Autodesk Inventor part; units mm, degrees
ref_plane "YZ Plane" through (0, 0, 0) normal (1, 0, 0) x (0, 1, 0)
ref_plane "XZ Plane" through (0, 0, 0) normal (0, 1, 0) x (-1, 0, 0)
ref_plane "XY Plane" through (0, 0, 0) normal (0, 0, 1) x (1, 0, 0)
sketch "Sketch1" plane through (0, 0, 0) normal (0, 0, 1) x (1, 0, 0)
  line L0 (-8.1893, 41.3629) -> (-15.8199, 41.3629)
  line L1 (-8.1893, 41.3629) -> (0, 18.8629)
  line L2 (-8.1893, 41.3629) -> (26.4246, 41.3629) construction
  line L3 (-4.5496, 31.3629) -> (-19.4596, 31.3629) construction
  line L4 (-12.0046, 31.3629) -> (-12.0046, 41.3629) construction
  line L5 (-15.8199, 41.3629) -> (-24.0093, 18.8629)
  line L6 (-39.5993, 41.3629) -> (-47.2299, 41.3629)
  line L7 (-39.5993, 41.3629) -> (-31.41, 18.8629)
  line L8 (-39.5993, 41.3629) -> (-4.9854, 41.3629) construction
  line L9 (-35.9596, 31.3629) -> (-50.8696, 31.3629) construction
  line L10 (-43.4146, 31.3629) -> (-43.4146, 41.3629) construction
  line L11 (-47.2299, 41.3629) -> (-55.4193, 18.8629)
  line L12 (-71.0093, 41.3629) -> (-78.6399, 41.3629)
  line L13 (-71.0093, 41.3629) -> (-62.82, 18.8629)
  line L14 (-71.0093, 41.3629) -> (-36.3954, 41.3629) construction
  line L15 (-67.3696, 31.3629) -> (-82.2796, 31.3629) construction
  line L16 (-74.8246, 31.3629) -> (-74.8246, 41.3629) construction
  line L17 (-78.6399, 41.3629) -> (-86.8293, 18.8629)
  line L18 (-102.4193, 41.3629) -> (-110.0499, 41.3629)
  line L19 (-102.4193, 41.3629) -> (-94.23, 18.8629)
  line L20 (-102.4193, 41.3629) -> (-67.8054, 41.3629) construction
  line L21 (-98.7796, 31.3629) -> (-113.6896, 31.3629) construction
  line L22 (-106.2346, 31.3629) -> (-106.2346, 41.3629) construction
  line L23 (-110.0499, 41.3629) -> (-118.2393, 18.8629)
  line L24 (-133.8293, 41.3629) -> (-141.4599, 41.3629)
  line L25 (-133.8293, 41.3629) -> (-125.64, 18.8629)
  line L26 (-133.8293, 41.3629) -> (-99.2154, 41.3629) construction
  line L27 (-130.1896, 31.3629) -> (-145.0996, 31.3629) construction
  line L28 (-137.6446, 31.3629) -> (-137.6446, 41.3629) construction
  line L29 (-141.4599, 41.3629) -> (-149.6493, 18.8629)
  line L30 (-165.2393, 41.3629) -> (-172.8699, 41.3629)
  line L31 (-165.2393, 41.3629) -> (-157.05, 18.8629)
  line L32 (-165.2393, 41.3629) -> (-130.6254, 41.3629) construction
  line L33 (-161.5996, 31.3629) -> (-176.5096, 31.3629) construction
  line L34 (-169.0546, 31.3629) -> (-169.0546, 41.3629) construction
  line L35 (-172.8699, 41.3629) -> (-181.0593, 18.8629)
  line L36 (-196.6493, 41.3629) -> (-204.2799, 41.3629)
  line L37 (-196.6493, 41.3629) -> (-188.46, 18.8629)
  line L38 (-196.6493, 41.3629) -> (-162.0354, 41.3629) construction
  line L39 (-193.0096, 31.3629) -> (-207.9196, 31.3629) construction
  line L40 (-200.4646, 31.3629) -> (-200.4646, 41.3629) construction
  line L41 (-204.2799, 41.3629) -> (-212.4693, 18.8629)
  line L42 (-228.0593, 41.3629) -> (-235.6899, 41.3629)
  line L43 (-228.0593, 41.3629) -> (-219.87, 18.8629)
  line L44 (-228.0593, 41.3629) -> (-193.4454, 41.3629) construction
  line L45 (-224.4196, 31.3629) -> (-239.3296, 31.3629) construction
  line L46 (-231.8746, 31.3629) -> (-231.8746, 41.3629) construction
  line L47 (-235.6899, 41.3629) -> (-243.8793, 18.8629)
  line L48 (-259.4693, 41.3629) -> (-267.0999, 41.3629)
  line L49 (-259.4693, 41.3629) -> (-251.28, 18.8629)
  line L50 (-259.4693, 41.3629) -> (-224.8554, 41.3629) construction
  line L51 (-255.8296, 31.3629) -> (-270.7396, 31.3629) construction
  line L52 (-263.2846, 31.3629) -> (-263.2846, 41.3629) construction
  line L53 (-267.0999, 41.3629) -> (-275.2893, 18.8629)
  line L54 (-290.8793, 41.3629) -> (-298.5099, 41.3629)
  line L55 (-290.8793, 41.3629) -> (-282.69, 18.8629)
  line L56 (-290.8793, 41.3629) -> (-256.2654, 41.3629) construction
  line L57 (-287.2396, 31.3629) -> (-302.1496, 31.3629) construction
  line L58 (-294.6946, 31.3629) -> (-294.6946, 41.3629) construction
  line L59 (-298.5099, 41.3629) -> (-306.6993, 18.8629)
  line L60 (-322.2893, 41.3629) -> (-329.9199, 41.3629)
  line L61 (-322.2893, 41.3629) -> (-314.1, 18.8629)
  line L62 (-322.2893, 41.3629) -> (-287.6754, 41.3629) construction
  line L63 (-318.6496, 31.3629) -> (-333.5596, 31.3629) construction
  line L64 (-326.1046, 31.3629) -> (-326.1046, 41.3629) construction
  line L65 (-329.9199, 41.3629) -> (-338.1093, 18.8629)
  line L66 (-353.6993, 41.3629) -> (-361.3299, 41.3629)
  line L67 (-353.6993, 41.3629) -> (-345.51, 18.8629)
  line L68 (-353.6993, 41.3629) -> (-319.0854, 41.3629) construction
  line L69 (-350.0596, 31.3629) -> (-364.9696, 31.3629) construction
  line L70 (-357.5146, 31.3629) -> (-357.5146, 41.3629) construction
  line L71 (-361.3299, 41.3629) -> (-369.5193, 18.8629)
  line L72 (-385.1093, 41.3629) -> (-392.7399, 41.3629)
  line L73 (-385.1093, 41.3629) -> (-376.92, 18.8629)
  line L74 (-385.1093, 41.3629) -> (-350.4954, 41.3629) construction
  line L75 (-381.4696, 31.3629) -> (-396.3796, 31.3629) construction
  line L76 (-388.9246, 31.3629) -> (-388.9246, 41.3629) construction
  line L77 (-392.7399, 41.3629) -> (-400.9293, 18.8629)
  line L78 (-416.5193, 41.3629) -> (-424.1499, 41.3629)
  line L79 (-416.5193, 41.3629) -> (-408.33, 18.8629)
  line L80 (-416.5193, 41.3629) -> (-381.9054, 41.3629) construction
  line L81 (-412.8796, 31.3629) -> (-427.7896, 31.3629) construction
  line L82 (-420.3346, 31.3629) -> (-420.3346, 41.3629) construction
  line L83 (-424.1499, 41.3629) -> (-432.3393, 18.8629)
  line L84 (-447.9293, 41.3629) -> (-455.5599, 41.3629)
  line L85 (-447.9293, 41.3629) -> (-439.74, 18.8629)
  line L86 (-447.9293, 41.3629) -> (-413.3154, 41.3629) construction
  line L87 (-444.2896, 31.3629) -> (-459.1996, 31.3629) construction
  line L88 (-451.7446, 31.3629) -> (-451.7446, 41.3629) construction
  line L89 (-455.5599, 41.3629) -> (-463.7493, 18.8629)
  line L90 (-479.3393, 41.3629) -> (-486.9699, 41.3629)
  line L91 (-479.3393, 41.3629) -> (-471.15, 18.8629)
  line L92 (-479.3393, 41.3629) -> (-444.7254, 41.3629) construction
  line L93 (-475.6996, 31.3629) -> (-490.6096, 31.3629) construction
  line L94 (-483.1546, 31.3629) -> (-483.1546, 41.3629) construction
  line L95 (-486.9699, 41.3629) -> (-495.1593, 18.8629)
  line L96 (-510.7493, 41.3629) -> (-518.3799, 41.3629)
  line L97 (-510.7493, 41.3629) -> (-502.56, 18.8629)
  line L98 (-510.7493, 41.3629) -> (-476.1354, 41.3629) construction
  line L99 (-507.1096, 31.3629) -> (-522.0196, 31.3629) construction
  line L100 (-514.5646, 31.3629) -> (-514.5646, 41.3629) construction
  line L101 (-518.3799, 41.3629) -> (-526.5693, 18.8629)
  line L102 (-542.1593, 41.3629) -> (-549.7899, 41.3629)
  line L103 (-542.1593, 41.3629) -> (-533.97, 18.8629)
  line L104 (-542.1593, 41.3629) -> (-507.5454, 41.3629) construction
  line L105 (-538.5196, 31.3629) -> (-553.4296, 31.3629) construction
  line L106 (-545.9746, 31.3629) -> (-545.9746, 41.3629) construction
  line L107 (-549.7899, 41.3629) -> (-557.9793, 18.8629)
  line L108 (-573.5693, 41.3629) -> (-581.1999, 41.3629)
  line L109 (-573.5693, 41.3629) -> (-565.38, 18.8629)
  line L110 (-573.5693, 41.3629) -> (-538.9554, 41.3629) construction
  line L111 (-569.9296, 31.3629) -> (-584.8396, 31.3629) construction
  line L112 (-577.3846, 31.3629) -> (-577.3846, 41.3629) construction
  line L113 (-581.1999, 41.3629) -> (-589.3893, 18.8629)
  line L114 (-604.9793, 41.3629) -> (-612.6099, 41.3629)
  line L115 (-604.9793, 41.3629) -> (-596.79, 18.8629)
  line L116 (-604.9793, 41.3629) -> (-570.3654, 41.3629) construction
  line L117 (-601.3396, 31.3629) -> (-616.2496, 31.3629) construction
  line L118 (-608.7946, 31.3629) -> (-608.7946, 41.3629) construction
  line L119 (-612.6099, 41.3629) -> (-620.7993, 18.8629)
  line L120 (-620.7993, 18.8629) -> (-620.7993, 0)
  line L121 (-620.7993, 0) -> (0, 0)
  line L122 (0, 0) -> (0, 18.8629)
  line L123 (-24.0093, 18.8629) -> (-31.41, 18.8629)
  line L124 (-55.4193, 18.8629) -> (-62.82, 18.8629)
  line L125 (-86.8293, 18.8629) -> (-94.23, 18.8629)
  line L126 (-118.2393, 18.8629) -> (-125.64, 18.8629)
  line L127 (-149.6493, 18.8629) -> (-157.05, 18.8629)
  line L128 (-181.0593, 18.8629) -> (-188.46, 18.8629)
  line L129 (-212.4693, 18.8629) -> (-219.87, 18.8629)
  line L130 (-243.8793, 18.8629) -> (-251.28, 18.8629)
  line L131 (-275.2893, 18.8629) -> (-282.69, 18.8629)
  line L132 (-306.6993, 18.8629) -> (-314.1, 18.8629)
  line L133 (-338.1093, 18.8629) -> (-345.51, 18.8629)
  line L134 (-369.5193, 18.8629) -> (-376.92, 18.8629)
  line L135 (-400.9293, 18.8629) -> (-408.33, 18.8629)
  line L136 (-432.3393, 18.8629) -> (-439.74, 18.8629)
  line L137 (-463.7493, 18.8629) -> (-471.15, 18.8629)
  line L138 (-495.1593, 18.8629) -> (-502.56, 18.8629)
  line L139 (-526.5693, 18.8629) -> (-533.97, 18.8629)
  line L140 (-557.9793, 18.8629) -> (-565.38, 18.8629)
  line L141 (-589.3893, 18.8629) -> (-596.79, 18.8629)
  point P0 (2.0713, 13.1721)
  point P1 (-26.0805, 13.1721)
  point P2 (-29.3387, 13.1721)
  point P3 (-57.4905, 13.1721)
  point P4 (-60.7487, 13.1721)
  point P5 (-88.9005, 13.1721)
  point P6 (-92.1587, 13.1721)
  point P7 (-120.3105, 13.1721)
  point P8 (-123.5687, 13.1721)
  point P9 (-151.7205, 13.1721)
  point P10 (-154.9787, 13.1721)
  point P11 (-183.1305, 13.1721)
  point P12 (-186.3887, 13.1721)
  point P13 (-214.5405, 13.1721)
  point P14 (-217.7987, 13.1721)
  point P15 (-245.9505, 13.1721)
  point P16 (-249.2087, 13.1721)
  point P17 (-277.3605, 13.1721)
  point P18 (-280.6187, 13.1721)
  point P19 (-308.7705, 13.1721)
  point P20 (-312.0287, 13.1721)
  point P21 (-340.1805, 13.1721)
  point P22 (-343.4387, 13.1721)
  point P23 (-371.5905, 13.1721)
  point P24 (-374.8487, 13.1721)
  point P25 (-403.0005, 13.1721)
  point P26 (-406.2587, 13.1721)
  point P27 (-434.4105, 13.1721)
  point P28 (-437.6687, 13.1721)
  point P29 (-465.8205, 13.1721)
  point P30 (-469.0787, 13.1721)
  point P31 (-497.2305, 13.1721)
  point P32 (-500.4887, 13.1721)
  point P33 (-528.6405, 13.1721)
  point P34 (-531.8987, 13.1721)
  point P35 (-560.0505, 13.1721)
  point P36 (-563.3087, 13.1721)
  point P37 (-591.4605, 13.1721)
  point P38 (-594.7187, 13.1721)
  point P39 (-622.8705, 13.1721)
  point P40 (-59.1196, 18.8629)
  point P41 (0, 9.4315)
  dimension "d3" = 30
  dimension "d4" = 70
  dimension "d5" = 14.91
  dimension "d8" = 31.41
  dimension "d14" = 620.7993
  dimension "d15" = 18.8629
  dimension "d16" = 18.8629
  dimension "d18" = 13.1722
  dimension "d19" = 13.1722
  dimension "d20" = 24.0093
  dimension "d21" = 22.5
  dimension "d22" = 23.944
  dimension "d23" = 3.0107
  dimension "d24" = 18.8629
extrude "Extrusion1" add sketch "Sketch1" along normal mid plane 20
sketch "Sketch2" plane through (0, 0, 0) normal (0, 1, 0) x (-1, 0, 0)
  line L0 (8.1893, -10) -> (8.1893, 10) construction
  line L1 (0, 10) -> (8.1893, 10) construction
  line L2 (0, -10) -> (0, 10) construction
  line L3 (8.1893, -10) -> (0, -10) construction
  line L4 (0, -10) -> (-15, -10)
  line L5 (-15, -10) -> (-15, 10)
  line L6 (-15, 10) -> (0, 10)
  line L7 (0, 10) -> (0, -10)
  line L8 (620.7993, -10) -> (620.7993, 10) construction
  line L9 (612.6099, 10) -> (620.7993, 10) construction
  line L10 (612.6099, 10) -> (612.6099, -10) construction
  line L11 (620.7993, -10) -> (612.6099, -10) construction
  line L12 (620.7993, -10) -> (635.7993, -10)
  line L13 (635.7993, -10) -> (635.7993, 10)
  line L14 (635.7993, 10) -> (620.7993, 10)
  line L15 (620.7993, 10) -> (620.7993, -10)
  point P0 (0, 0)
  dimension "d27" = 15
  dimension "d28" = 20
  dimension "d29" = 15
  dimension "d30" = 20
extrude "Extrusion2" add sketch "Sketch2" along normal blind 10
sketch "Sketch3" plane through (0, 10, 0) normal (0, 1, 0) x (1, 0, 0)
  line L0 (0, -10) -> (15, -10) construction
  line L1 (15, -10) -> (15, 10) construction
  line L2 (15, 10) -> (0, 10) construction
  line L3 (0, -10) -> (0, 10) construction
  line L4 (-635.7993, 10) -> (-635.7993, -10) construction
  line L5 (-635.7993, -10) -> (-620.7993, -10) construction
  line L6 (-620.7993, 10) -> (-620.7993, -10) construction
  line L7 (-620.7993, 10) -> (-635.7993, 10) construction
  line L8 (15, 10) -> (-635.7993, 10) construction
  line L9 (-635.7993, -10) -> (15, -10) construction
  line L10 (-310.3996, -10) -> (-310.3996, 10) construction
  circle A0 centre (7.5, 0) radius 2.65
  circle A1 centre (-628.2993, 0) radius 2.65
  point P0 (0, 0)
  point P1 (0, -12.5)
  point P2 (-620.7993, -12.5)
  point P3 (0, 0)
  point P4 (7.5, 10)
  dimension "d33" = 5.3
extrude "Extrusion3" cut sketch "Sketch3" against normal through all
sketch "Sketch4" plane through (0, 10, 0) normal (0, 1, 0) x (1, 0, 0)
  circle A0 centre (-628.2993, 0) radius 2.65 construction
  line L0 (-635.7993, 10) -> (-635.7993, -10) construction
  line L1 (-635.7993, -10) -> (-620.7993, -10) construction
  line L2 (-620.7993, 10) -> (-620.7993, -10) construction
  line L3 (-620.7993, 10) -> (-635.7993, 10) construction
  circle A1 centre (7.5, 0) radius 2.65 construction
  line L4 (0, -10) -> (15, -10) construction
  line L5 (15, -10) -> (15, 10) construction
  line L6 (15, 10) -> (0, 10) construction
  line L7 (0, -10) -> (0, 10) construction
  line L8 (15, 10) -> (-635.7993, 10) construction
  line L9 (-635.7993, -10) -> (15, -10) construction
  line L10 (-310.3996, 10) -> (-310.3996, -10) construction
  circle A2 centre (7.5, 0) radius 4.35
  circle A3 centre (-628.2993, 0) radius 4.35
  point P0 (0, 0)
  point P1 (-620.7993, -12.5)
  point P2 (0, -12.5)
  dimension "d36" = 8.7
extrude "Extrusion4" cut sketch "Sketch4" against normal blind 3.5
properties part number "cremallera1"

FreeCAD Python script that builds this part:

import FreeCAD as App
import Part
import Sketcher
Q = App.Units.Quantity


def add_polygon(sketch, points):
    """Adds a closed chain of lines whose ends are joined by coincident constraints."""
    first, n = sketch.GeometryCount, len(points)
    for a, b in zip(points, points[1:] + points[:1]):
        sketch.addGeometry(Part.LineSegment(App.Vector(*a, 0), App.Vector(*b, 0)), False)
    for i in range(n):
        sketch.addConstraint(Sketcher.Constraint("Coincident", first + i, 2, first + (i + 1) % n, 1))

doc = App.newDocument("Part")
body = doc.addObject("PartDesign::Body", "Body")

# Sketch on XY plane
sketch1 = doc.addObject("Sketcher::SketchObject", "Sketch")
body.addObject(sketch1)
sketch1.AttachmentSupport = (doc.XY_Plane, [""])
sketch1.MapMode = "FlatFace"
add_polygon(sketch1, [(0, 19), (-8, 41), (-16, 41), (-24, 19), (-31, 19), (-40, 41), (-47, 41), (-55, 19), (-63, 19), (-71, 41), (-79, 41), (-87, 19), (-94, 19), (-102, 41), (-110, 41), (-118, 19), (-126, 19), (-134, 41), (-141, 41), (-150, 19), (-157, 19), (-165, 41), (-173, 41), (-181, 19), (-188, 19), (-197, 41), (-204, 41), (-212, 19), (-220, 19), (-228, 41), (-236, 41), (-244, 19), (-251, 19), (-259, 41), (-267, 41), (-275, 19), (-283, 19), (-291, 41), (-299, 41), (-307, 19), (-314, 19), (-322, 41), (-330, 41), (-338, 19), (-346, 19), (-354, 41), (-361, 41), (-370, 19), (-377, 19), (-385, 41), (-393, 41), (-401, 19), (-408, 19), (-417, 41), (-424, 41), (-432, 19), (-440, 19), (-448, 41), (-456, 41), (-464, 19), (-471, 19), (-479, 41), (-487, 41), (-495, 19), (-503, 19), (-511, 41), (-518, 41), (-527, 19), (-534, 19), (-542, 41), (-550, 41), (-558, 19), (-565, 19), (-574, 41), (-581, 41), (-589, 19), (-597, 19), (-605, 41), (-613, 41), (-621, 19), (-621, 0), (0, 0)])  # lines 0-81
sketch1.addConstraint(Sketcher.Constraint("Horizontal", 1))
sketch1.addConstraint(Sketcher.Constraint("Horizontal", 3))
sketch1.addConstraint(Sketcher.Constraint("Horizontal", 5))
sketch1.addConstraint(Sketcher.Constraint("Horizontal", 7))
sketch1.addConstraint(Sketcher.Constraint("Horizontal", 9))
sketch1.addConstraint(Sketcher.Constraint("Horizontal", 11))
sketch1.addConstraint(Sketcher.Constraint("Horizontal", 13))
sketch1.addConstraint(Sketcher.Constraint("Horizontal", 15))
sketch1.addConstraint(Sketcher.Constraint("Horizontal", 17))
sketch1.addConstraint(Sketcher.Constraint("Horizontal", 19))
sketch1.addConstraint(Sketcher.Constraint("Horizontal", 21))
sketch1.addConstraint(Sketcher.Constraint("Horizontal", 23))
sketch1.addConstraint(Sketcher.Constraint("Horizontal", 25))
sketch1.addConstraint(Sketcher.Constraint("Horizontal", 27))
sketch1.addConstraint(Sketcher.Constraint("Horizontal", 29))
sketch1.addConstraint(Sketcher.Constraint("Horizontal", 31))
sketch1.addConstraint(Sketcher.Constraint("Horizontal", 33))
sketch1.addConstraint(Sketcher.Constraint("Horizontal", 35))
sketch1.addConstraint(Sketcher.Constraint("Horizontal", 37))
sketch1.addConstraint(Sketcher.Constraint("Horizontal", 39))
sketch1.addConstraint(Sketcher.Constraint("Horizontal", 41))
sketch1.addConstraint(Sketcher.Constraint("Horizontal", 43))
sketch1.addConstraint(Sketcher.Constraint("Horizontal", 45))
sketch1.addConstraint(Sketcher.Constraint("Horizontal", 47))
sketch1.addConstraint(Sketcher.Constraint("Horizontal", 49))
sketch1.addConstraint(Sketcher.Constraint("Horizontal", 51))
sketch1.addConstraint(Sketcher.Constraint("Horizontal", 53))
sketch1.addConstraint(Sketcher.Constraint("Horizontal", 55))
sketch1.addConstraint(Sketcher.Constraint("Horizontal", 57))
sketch1.addConstraint(Sketcher.Constraint("Horizontal", 59))
sketch1.addConstraint(Sketcher.Constraint("Horizontal", 61))
sketch1.addConstraint(Sketcher.Constraint("Horizontal", 63))
sketch1.addConstraint(Sketcher.Constraint("Horizontal", 65))
sketch1.addConstraint(Sketcher.Constraint("Horizontal", 67))
sketch1.addConstraint(Sketcher.Constraint("Horizontal", 69))
sketch1.addConstraint(Sketcher.Constraint("Horizontal", 71))
sketch1.addConstraint(Sketcher.Constraint("Horizontal", 73))
sketch1.addConstraint(Sketcher.Constraint("Horizontal", 75))
sketch1.addConstraint(Sketcher.Constraint("Horizontal", 77))
sketch1.addConstraint(Sketcher.Constraint("Vertical", 79))
sketch1.addConstraint(Sketcher.Constraint("Horizontal", 80))
sketch1.addConstraint(Sketcher.Constraint("Vertical", 81))
sketch1.addConstraint(Sketcher.Constraint("Coincident", 80, 2, -1, 1))
sketch1.addConstraint(Sketcher.Constraint("Parallel", 0, 4))
sketch1.addConstraint(Sketcher.Constraint("Parallel", 2, 6))
sketch1.addConstraint(Sketcher.Constraint("Parallel", 4, 8))
sketch1.addConstraint(Sketcher.Constraint("Parallel", 6, 10))
sketch1.addConstraint(Sketcher.Constraint("Parallel", 8, 12))
sketch1.addConstraint(Sketcher.Constraint("Parallel", 10, 14))
sketch1.addConstraint(Sketcher.Constraint("Parallel", 12, 16))
sketch1.addConstraint(Sketcher.Constraint("Parallel", 14, 18))
sketch1.addConstraint(Sketcher.Constraint("Parallel", 16, 20))
sketch1.addConstraint(Sketcher.Constraint("Parallel", 18, 22))
sketch1.addConstraint(Sketcher.Constraint("Parallel", 20, 24))
sketch1.addConstraint(Sketcher.Constraint("Parallel", 22, 26))
sketch1.addConstraint(Sketcher.Constraint("Parallel", 24, 28))
sketch1.addConstraint(Sketcher.Constraint("Parallel", 26, 30))
sketch1.addConstraint(Sketcher.Constraint("Parallel", 28, 32))
sketch1.addConstraint(Sketcher.Constraint("Parallel", 30, 34))
sketch1.addConstraint(Sketcher.Constraint("Parallel", 32, 36))
sketch1.addConstraint(Sketcher.Constraint("Parallel", 34, 38))
sketch1.addConstraint(Sketcher.Constraint("Parallel", 36, 40))
sketch1.addConstraint(Sketcher.Constraint("Parallel", 38, 42))
sketch1.addConstraint(Sketcher.Constraint("Parallel", 40, 44))
sketch1.addConstraint(Sketcher.Constraint("Parallel", 42, 46))
sketch1.addConstraint(Sketcher.Constraint("Parallel", 44, 48))
sketch1.addConstraint(Sketcher.Constraint("Parallel", 46, 50))
sketch1.addConstraint(Sketcher.Constraint("Parallel", 48, 52))
sketch1.addConstraint(Sketcher.Constraint("Parallel", 50, 54))
sketch1.addConstraint(Sketcher.Constraint("Parallel", 52, 56))
sketch1.addConstraint(Sketcher.Constraint("Parallel", 54, 58))
sketch1.addConstraint(Sketcher.Constraint("Parallel", 56, 60))
sketch1.addConstraint(Sketcher.Constraint("Parallel", 58, 62))
sketch1.addConstraint(Sketcher.Constraint("Parallel", 60, 64))
sketch1.addConstraint(Sketcher.Constraint("Parallel", 62, 66))
sketch1.addConstraint(Sketcher.Constraint("Parallel", 64, 68))
sketch1.addConstraint(Sketcher.Constraint("Parallel", 66, 70))
sketch1.addConstraint(Sketcher.Constraint("Parallel", 68, 72))
sketch1.addConstraint(Sketcher.Constraint("Parallel", 70, 74))
sketch1.addConstraint(Sketcher.Constraint("Parallel", 72, 76))
sketch1.addConstraint(Sketcher.Constraint("Parallel", 74, 78))
sketch1.addConstraint(Sketcher.Constraint("Horizontal", 1, 2, 4, 2))
sketch1.addConstraint(Sketcher.Constraint("Horizontal", 3, 2, 6, 2))
sketch1.addConstraint(Sketcher.Constraint("Horizontal", 5, 2, 8, 2))
sketch1.addConstraint(Sketcher.Constraint("Horizontal", 7, 2, 10, 2))
sketch1.addConstraint(Sketcher.Constraint("Horizontal", 9, 2, 12, 2))
sketch1.addConstraint(Sketcher.Constraint("Horizontal", 11, 2, 14, 2))
sketch1.addConstraint(Sketcher.Constraint("Horizontal", 13, 2, 16, 2))
sketch1.addConstraint(Sketcher.Constraint("Horizontal", 15, 2, 18, 2))
sketch1.addConstraint(Sketcher.Constraint("Horizontal", 17, 2, 20, 2))
sketch1.addConstraint(Sketcher.Constraint("Horizontal", 19, 2, 22, 2))
sketch1.addConstraint(Sketcher.Constraint("Horizontal", 21, 2, 24, 2))
sketch1.addConstraint(Sketcher.Constraint("Horizontal", 23, 2, 26, 2))
sketch1.addConstraint(Sketcher.Constraint("Horizontal", 25, 2, 28, 2))
sketch1.addConstraint(Sketcher.Constraint("Horizontal", 27, 2, 30, 2))
sketch1.addConstraint(Sketcher.Constraint("Horizontal", 29, 2, 32, 2))
sketch1.addConstraint(Sketcher.Constraint("Horizontal", 31, 2, 34, 2))
sketch1.addConstraint(Sketcher.Constraint("Horizontal", 33, 2, 36, 2))
sketch1.addConstraint(Sketcher.Constraint("Horizontal", 35, 2, 38, 2))
sketch1.addConstraint(Sketcher.Constraint("Horizontal", 37, 2, 40, 2))
sketch1.addConstraint(Sketcher.Constraint("Horizontal", 39, 2, 42, 2))
sketch1.addConstraint(Sketcher.Constraint("Horizontal", 41, 2, 44, 2))
sketch1.addConstraint(Sketcher.Constraint("Horizontal", 43, 2, 46, 2))
sketch1.addConstraint(Sketcher.Constraint("Horizontal", 45, 2, 48, 2))
sketch1.addConstraint(Sketcher.Constraint("Horizontal", 47, 2, 50, 2))
sketch1.addConstraint(Sketcher.Constraint("Horizontal", 49, 2, 52, 2))
sketch1.addConstraint(Sketcher.Constraint("Horizontal", 51, 2, 54, 2))
sketch1.addConstraint(Sketcher.Constraint("Horizontal", 53, 2, 56, 2))
sketch1.addConstraint(Sketcher.Constraint("Horizontal", 55, 2, 58, 2))
sketch1.addConstraint(Sketcher.Constraint("Horizontal", 57, 2, 60, 2))
sketch1.addConstraint(Sketcher.Constraint("Horizontal", 59, 2, 62, 2))
sketch1.addConstraint(Sketcher.Constraint("Horizontal", 61, 2, 64, 2))
sketch1.addConstraint(Sketcher.Constraint("Horizontal", 63, 2, 66, 2))
sketch1.addConstraint(Sketcher.Constraint("Horizontal", 65, 2, 68, 2))
sketch1.addConstraint(Sketcher.Constraint("Horizontal", 67, 2, 70, 2))
sketch1.addConstraint(Sketcher.Constraint("Horizontal", 69, 2, 72, 2))
sketch1.addConstraint(Sketcher.Constraint("Horizontal", 71, 2, 74, 2))
sketch1.addConstraint(Sketcher.Constraint("Horizontal", 73, 2, 76, 2))
sketch1.addConstraint(Sketcher.Constraint("Horizontal", 75, 2, 78, 2))
sketch1.addConstraint(Sketcher.Constraint("Horizontal", 78, 2, 81, 2))
sketch1.addConstraint(Sketcher.Constraint("Equal", 1, 5))
sketch1.addConstraint(Sketcher.Constraint("Equal", 3, 7))
sketch1.addConstraint(Sketcher.Constraint("Equal", 5, 9))
sketch1.addConstraint(Sketcher.Constraint("Equal", 7, 11))
sketch1.addConstraint(Sketcher.Constraint("Equal", 9, 13))
sketch1.addConstraint(Sketcher.Constraint("Equal", 11, 15))
sketch1.addConstraint(Sketcher.Constraint("Equal", 13, 17))
sketch1.addConstraint(Sketcher.Constraint("Equal", 15, 19))
sketch1.addConstraint(Sketcher.Constraint("Equal", 17, 21))
sketch1.addConstraint(Sketcher.Constraint("Equal", 19, 23))
sketch1.addConstraint(Sketcher.Constraint("Equal", 21, 25))
sketch1.addConstraint(Sketcher.Constraint("Equal", 23, 27))
sketch1.addConstraint(Sketcher.Constraint("Equal", 25, 29))
sketch1.addConstraint(Sketcher.Constraint("Equal", 27, 31))
sketch1.addConstraint(Sketcher.Constraint("Equal", 29, 33))
sketch1.addConstraint(Sketcher.Constraint("Equal", 31, 35))
sketch1.addConstraint(Sketcher.Constraint("Equal", 33, 37))
sketch1.addConstraint(Sketcher.Constraint("Equal", 35, 39))
sketch1.addConstraint(Sketcher.Constraint("Equal", 37, 41))
sketch1.addConstraint(Sketcher.Constraint("Equal", 39, 43))
sketch1.addConstraint(Sketcher.Constraint("Equal", 41, 45))
sketch1.addConstraint(Sketcher.Constraint("Equal", 43, 47))
sketch1.addConstraint(Sketcher.Constraint("Equal", 45, 49))
sketch1.addConstraint(Sketcher.Constraint("Equal", 47, 51))
sketch1.addConstraint(Sketcher.Constraint("Equal", 49, 53))
sketch1.addConstraint(Sketcher.Constraint("Equal", 51, 55))
sketch1.addConstraint(Sketcher.Constraint("Equal", 53, 57))
sketch1.addConstraint(Sketcher.Constraint("Equal", 55, 59))
sketch1.addConstraint(Sketcher.Constraint("Equal", 57, 61))
sketch1.addConstraint(Sketcher.Constraint("Equal", 59, 63))
sketch1.addConstraint(Sketcher.Constraint("Equal", 61, 65))
sketch1.addConstraint(Sketcher.Constraint("Equal", 63, 67))
sketch1.addConstraint(Sketcher.Constraint("Equal", 65, 69))
sketch1.addConstraint(Sketcher.Constraint("Equal", 67, 71))
sketch1.addConstraint(Sketcher.Constraint("Equal", 69, 73))
sketch1.addConstraint(Sketcher.Constraint("Equal", 71, 75))
sketch1.addConstraint(Sketcher.Constraint("Equal", 73, 77))
sketch1.addConstraint(Sketcher.Constraint("Equal", 0, 2))
sketch1.addConstraint(Sketcher.Constraint("DistanceY", 79, 2, 79, 1, 18.863))
sketch1.addConstraint(Sketcher.Constraint("DistanceX", 3, 2, -1, 1, 31.41))
sketch1.addConstraint(Sketcher.Constraint("Angle", 0, Q("110 deg")))
sketch1.addConstraint(Sketcher.Constraint("Distance", 0, 23.944))
sketch1.addConstraint(Sketcher.Constraint("DistanceX", 80, 1, 80, 2, 620.7993))
pad1 = doc.addObject("PartDesign::Pad", "Pad")
body.addObject(pad1)
pad1.Profile = sketch1
pad1.Length = 20
pad1.Midplane = True

# Sketch on XZ plane
sketch2 = doc.addObject("Sketcher::SketchObject", "Sketch001")
body.addObject(sketch2)
sketch2.AttachmentSupport = (doc.XZ_Plane, [""])
sketch2.MapMode = "FlatFace"
add_polygon(sketch2, [(15, -10), (0, -10), (0, 10), (15, 10)])  # lines 0-3
add_polygon(sketch2, [(-621, 10), (-621, -10), (-636, -10), (-636, 10)])  # lines 4-7
sketch2.addConstraint(Sketcher.Constraint("Horizontal", 0))
sketch2.addConstraint(Sketcher.Constraint("Vertical", 1))
sketch2.addConstraint(Sketcher.Constraint("Horizontal", 2))
sketch2.addConstraint(Sketcher.Constraint("Vertical", 3))
sketch2.addConstraint(Sketcher.Constraint("Vertical", 4))
sketch2.addConstraint(Sketcher.Constraint("Horizontal", 5))
sketch2.addConstraint(Sketcher.Constraint("Vertical", 6))
sketch2.addConstraint(Sketcher.Constraint("Horizontal", 7))
sketch2.addConstraint(Sketcher.Constraint("Symmetric", 0, 2, 1, 2, -1, 1))
sketch2.addConstraint(Sketcher.Constraint("Horizontal", 3, 2, 4, 2))
sketch2.addConstraint(Sketcher.Constraint("Horizontal", 2, 2, 6, 2))
sketch2.addConstraint(Sketcher.Constraint("Equal", 2, 5))
sketch2.addConstraint(Sketcher.Constraint("DistanceX", 0, 2, 0, 1, 15.0))
sketch2.addConstraint(Sketcher.Constraint("DistanceY", 1, 1, 1, 2, 20.0))
sketch2.addConstraint(Sketcher.Constraint("DistanceX", 4, 2, -1, 1, 620.7993))
pad2 = doc.addObject("PartDesign::Pad", "Pad001")
body.addObject(pad2)
pad2.Profile = sketch2
pad2.Length = 10
pad2.Reversed = True

# Sketch on XZ plane
sketch3 = doc.addObject("Sketcher::SketchObject", "Sketch002")
body.addObject(sketch3)
sketch3.AttachmentSupport = (doc.XZ_Plane, [""])
sketch3.MapMode = "FlatFace"
sketch3.AttachmentOffset = App.Placement(App.Vector(0, 0, -10), App.Rotation())
sketch3.addGeometry(Part.Circle(App.Vector(7.5, 0, 0), App.Vector(0, 0, 1), 2.6), False)
sketch3.addGeometry(Part.Circle(App.Vector(-628.3, 0, 0), App.Vector(0, 0, 1), 2.6), False)
sketch3.addConstraint(Sketcher.Constraint("Equal", 0, 1))
sketch3.addConstraint(Sketcher.Constraint("PointOnObject", 0, 3, -1))
sketch3.addConstraint(Sketcher.Constraint("PointOnObject", 1, 3, -1))
sketch3.addConstraint(Sketcher.Constraint("Diameter", 0, 5.3))
sketch3.addConstraint(Sketcher.Constraint("DistanceX", -1, 1, 0, 3, 7.5))
sketch3.addConstraint(Sketcher.Constraint("DistanceX", 1, 3, -1, 1, 628.2993))
pocket1 = doc.addObject("PartDesign::Pocket", "Pocket")
body.addObject(pocket1)
pocket1.Profile = sketch3
pocket1.Type = "ThroughAll"
pocket1.Reversed = True

# Sketch on XZ plane
sketch4 = doc.addObject("Sketcher::SketchObject", "Sketch003")
body.addObject(sketch4)
sketch4.AttachmentSupport = (doc.XZ_Plane, [""])
sketch4.MapMode = "FlatFace"
sketch4.AttachmentOffset = App.Placement(App.Vector(0, 0, -10), App.Rotation())
sketch4.addGeometry(Part.Circle(App.Vector(7.5, 0, 0), App.Vector(0, 0, 1), 4.3), False)
sketch4.addGeometry(Part.Circle(App.Vector(-628.3, 0, 0), App.Vector(0, 0, 1), 4.3), False)
sketch4.addConstraint(Sketcher.Constraint("Equal", 0, 1))
sketch4.addConstraint(Sketcher.Constraint("PointOnObject", 0, 3, -1))
sketch4.addConstraint(Sketcher.Constraint("PointOnObject", 1, 3, -1))
sketch4.addConstraint(Sketcher.Constraint("Diameter", 0, 8.7))
sketch4.addConstraint(Sketcher.Constraint("DistanceX", -1, 1, 0, 3, 7.5))
sketch4.addConstraint(Sketcher.Constraint("DistanceX", 1, 3, -1, 1, 628.2993))
pocket2 = doc.addObject("PartDesign::Pocket", "Pocket001")
body.addObject(pocket2)
pocket2.Profile = sketch4
pocket2.Length = 3.5
pocket2.Reversed = True

doc.recompute()
